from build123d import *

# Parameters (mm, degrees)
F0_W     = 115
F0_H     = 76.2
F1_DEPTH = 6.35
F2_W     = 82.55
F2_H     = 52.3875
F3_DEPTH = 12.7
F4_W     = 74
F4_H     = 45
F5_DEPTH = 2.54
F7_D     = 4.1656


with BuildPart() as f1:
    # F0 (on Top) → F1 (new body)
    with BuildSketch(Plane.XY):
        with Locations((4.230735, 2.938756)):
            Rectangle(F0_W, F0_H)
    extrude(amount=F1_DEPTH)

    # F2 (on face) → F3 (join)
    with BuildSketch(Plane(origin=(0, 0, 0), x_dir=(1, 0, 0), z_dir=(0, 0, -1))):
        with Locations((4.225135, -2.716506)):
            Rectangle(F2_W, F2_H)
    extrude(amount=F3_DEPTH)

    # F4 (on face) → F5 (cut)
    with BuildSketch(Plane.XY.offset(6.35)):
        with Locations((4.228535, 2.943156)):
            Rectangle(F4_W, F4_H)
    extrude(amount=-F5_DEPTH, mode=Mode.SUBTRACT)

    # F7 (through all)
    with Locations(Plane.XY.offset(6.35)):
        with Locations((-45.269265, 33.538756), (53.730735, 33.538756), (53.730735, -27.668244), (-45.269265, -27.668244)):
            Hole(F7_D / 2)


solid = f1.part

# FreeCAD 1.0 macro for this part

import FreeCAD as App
import Part
import Sketcher
from FreeCAD import Vector
Q = App.Units.Quantity

doc = App.newDocument("Part")
body = doc.addObject("PartDesign::Body", "Body")

# Sketch on XY plane
sketch1 = body.newObject("Sketcher::SketchObject", "Sketch")
sketch1.AttachmentSupport = (doc.getObject("XY_Plane"), [""])
sketch1.MapMode = "FlatFace"
sketch1.addGeometry(Part.LineSegment(Vector(-53.269265, 41.038756, 0), Vector(-53.269265, -35.161244, 0)), False)
sketch1.addGeometry(Part.LineSegment(Vector(-53.269265, -35.161244, 0), Vector(61.730735, -35.161244, 0)), False)
sketch1.addGeometry(Part.LineSegment(Vector(61.730735, -35.161244, 0), Vector(61.730735, 41.038756, 0)), False)
sketch1.addGeometry(Part.LineSegment(Vector(61.730735, 41.038756, 0), Vector(-53.269265, 41.038756, 0)), False)
sketch1.addConstraint(Sketcher.Constraint("Coincident", 0, 2, 1, 1))
sketch1.addConstraint(Sketcher.Constraint("Coincident", 1, 2, 2, 1))
sketch1.addConstraint(Sketcher.Constraint("Coincident", 2, 2, 3, 1))
sketch1.addConstraint(Sketcher.Constraint("Coincident", 3, 2, 0, 1))
sketch1.addConstraint(Sketcher.Constraint("Vertical", 0))
sketch1.addConstraint(Sketcher.Constraint("Horizontal", 1))
sketch1.addConstraint(Sketcher.Constraint("Vertical", 2))
sketch1.addConstraint(Sketcher.Constraint("Horizontal", 3))
sketch1.addConstraint(Sketcher.Constraint("DistanceY", 0, 2, 0, 1, Q("3 in")))
sketch1.addConstraint(Sketcher.Constraint("DistanceX", 1, 1, 1, 2, 115.0))
sketch1.addConstraint(Sketcher.Constraint("DistanceX", 0, 2, -1, 1, 53.269265))
sketch1.addConstraint(Sketcher.Constraint("DistanceY", 0, 2, -1, 1, 35.161244))
pad1 = body.newObject("PartDesign::Pad", "Pad")
pad1.Profile = sketch1
pad1.Length = Q("0.25 in")

# Sketch on XY plane
sketch2 = body.newObject("Sketcher::SketchObject", "Sketch001")
sketch2.AttachmentSupport = (doc.getObject("XY_Plane"), [""])
sketch2.MapMode = "FlatFace"
sketch2.addGeometry(Part.LineSegment(Vector(-37.049865, -23.477244, 0), Vector(-37.049865, 28.910256, 0)), False)
sketch2.addGeometry(Part.LineSegment(Vector(-37.049865, 28.910256, 0), Vector(45.500135, 28.910256, 0)), False)
sketch2.addGeometry(Part.LineSegment(Vector(45.500135, 28.910256, 0), Vector(45.500135, -23.477244, 0)), False)
sketch2.addGeometry(Part.LineSegment(Vector(45.500135, -23.477244, 0), Vector(-37.049865, -23.477244, 0)), False)
sketch2.addConstraint(Sketcher.Constraint("Coincident", 0, 2, 1, 1))
sketch2.addConstraint(Sketcher.Constraint("Coincident", 1, 2, 2, 1))
sketch2.addConstraint(Sketcher.Constraint("Coincident", 2, 2, 3, 1))
sketch2.addConstraint(Sketcher.Constraint("Coincident", 3, 2, 0, 1))
sketch2.addConstraint(Sketcher.Constraint("Vertical", 0))
sketch2.addConstraint(Sketcher.Constraint("Horizontal", 1))
sketch2.addConstraint(Sketcher.Constraint("Vertical", 2))
sketch2.addConstraint(Sketcher.Constraint("Horizontal", 3))
sketch2.addConstraint(Sketcher.Constraint("DistanceX", 1, 1, 1, 2, Q("3.25 in")))
sketch2.addConstraint(Sketcher.Constraint("DistanceY", 0, 1, 0, 2, Q("2.0625 in")))
sketch2.addConstraint(Sketcher.Constraint("DistanceX", 0, 2, -1, 1, 37.049865))
sketch2.addConstraint(Sketcher.Constraint("DistanceY", -1, 1, 0, 2, 28.910256))
pad2 = body.newObject("PartDesign::Pad", "Pad001")
pad2.Profile = sketch2
pad2.Length = Q("0.5 in")
pad2.Reversed = True

# Sketch on XY plane
sketch3 = body.newObject("Sketcher::SketchObject", "Sketch002")
sketch3.AttachmentSupport = (doc.getObject("XY_Plane"), [""])
sketch3.MapMode = "FlatFace"
sketch3.AttachmentOffset = App.Placement(Vector(0, 0, 0.25 * 25.4), App.Rotation())
sketch3.addGeometry(Part.LineSegment(Vector(-32.771465, 25.443156, 0), Vector(-32.771465, -19.556844, 0)), False)
sketch3.addGeometry(Part.LineSegment(Vector(-32.771465, -19.556844, 0), Vector(41.228535, -19.556844, 0)), False)
sketch3.addGeometry(Part.LineSegment(Vector(41.228535, -19.556844, 0), Vector(41.228535, 25.443156, 0)), False)
sketch3.addGeometry(Part.LineSegment(Vector(41.228535, 25.443156, 0), Vector(-32.771465, 25.443156, 0)), False)
sketch3.addConstraint(Sketcher.Constraint("Coincident", 0, 2, 1, 1))
sketch3.addConstraint(Sketcher.Constraint("Coincident", 1, 2, 2, 1))
sketch3.addConstraint(Sketcher.Constraint("Coincident", 2, 2, 3, 1))
sketch3.addConstraint(Sketcher.Constraint("Coincident", 3, 2, 0, 1))
sketch3.addConstraint(Sketcher.Constraint("Vertical", 0))
sketch3.addConstraint(Sketcher.Constraint("Horizontal", 1))
sketch3.addConstraint(Sketcher.Constraint("Vertical", 2))
sketch3.addConstraint(Sketcher.Constraint("Horizontal", 3))
sketch3.addConstraint(Sketcher.Constraint("DistanceX", 1, 1, 1, 2, 74.0))
sketch3.addConstraint(Sketcher.Constraint("DistanceY", 0, 2, 0, 1, 45.0))
sketch3.addConstraint(Sketcher.Constraint("DistanceX", 0, 2, -1, 1, 32.771465))
sketch3.addConstraint(Sketcher.Constraint("DistanceY", 0, 2, -1, 1, 19.556844))
pocket1 = body.newObject("PartDesign::Pocket", "Pocket")
pocket1.Profile = sketch3
pocket1.Length = Q("0.1 in")

# Sketch on XY plane
sketch4 = body.newObject("Sketcher::SketchObject", "Sketch003")
sketch4.AttachmentSupport = (doc.getObject("XY_Plane"), [""])
sketch4.MapMode = "FlatFace"
sketch4.AttachmentOffset = App.Placement(Vector(0, 0, 0.25 * 25.4), App.Rotation())
sketch4.addGeometry(Part.Circle(Vector(-45.269265, 33.538756, 0), Vector(0, 0, 1), 2.0828), False)
sketch4.addGeometry(Part.Circle(Vector(53.730735, 33.538756, 0), Vector(0, 0, 1), 2.0828), False)
sketch4.addGeometry(Part.Circle(Vector(53.730735, -27.668244, 0), Vector(0, 0, 1), 2.0828), False)
sketch4.addGeometry(Part.Circle(Vector(-45.269265, -27.668244, 0), Vector(0, 0, 1), 2.0828), False)
sketch4.addConstraint(Sketcher.Constraint("Equal", 0, 1))
sketch4.addConstraint(Sketcher.Constraint("Equal", 1, 2))
sketch4.addConstraint(Sketcher.Constraint("Equal", 2, 3))
sketch4.addConstraint(Sketcher.Constraint("Horizontal", 0, 3, 1, 3))
sketch4.addConstraint(Sketcher.Constraint("Horizontal", 2, 3, 3, 3))
sketch4.addConstraint(Sketcher.Constraint("Vertical", 1, 3, 2, 3))
sketch4.addConstraint(Sketcher.Constraint("Vertical", 0, 3, 3, 3))
sketch4.addConstraint(Sketcher.Constraint("Diameter", 0, Q("0.164 in")))
sketch4.addConstraint(Sketcher.Constraint("DistanceX", 0, 3, 1, 3, 99.0))
sketch4.addConstraint(Sketcher.Constraint("DistanceY", 2, 3, 1, 3, 61.207))
sketch4.addConstraint(Sketcher.Constraint("DistanceX", 0, 3, -1, 1, 45.269265))
sketch4.addConstraint(Sketcher.Constraint("DistanceY", -1, 1, 0, 3, 33.538756))
doc.recompute()
hole = body.newObject("PartDesign::Hole", "Hole")
hole.Profile = sketch4
hole.ThreadType = "None"
hole.Diameter = Q("0.164 in")
hole.DepthType = "ThroughAll"

doc.recompute()
